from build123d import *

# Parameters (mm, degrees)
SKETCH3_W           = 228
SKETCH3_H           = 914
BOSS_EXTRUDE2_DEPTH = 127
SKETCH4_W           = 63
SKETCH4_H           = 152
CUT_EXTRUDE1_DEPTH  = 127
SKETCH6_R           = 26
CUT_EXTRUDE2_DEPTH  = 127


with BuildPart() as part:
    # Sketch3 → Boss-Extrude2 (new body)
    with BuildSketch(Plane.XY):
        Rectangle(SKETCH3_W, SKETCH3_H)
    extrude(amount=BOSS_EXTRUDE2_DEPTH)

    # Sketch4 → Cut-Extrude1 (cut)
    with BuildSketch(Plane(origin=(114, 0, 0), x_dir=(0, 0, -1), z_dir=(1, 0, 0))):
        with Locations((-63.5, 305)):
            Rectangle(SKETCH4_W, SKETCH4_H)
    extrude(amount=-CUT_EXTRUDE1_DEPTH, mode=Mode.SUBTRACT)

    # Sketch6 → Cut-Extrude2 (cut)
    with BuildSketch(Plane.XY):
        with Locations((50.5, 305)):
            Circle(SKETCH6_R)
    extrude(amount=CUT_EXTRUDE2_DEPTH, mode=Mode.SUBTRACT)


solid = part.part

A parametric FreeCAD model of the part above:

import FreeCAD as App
import Part
import Sketcher
from FreeCAD import Vector

doc = App.newDocument("Part")
params = doc.addObject("Spreadsheet::Sheet", "Params")
for row, (alias, value) in enumerate([
    ("sketch1_width", "228 mm"),
    ("sketch1_height", "914 mm"),
    ("pad1_length", "127 mm"),
    ("sketch2_width", "152 mm"),
    ("sketch2_height", "63 mm"),
    ("pocket1_length", "127 mm"),
    ("sketch3_diameter", "52 mm"),
    ("pocket2_length", "127 mm"),
], start=1):
    params.set(f"A{row}", alias)
    params.set(f"B{row}", "=" + value)
    params.setAlias(f"B{row}", alias)

body = doc.addObject("PartDesign::Body", "Body")

# Sketch on XY plane
sketch1 = body.newObject("Sketcher::SketchObject", "Sketch")
sketch1.AttachmentSupport = (doc.getObject("XY_Plane"), [""])
sketch1.MapMode = "FlatFace"
sketch1.addGeometry([
    Part.LineSegment(Vector(-114, 457, 0), Vector(-114, -457, 0)),
    Part.LineSegment(Vector(-114, -457, 0), Vector(114, -457, 0)),
    Part.LineSegment(Vector(114, -457, 0), Vector(114, 457, 0)),
    Part.LineSegment(Vector(114, 457, 0), Vector(-114, 457, 0)),
], False)
sketch1.addConstraint([
    Sketcher.Constraint("Coincident", 0, 2, 1, 1),
    Sketcher.Constraint("Coincident", 1, 2, 2, 1),
    Sketcher.Constraint("Coincident", 2, 2, 3, 1),
    Sketcher.Constraint("Coincident", 3, 2, 0, 1),
    Sketcher.Constraint("Vertical", 0),
    Sketcher.Constraint("Horizontal", 1),
    Sketcher.Constraint("Vertical", 2),
    Sketcher.Constraint("Horizontal", 3),
    Sketcher.Constraint("Symmetric", 0, 2, 2, 2, -1, 1),
    Sketcher.Constraint("DistanceX", 1, 1, 1, 2, 228.0),
    Sketcher.Constraint("DistanceY", 0, 2, 0, 1, 914.0),
])
sketch1.setExpression("Constraints[9]", "Params.sketch1_width")
sketch1.setExpression("Constraints[10]", "Params.sketch1_height")
pad1 = body.newObject("PartDesign::Pad", "Pad")
pad1.Profile = sketch1
pad1.setExpression("Length", "Params.pad1_length")

# Sketch on YZ plane
sketch2 = body.newObject("Sketcher::SketchObject", "Sketch001")
sketch2.AttachmentSupport = (doc.getObject("YZ_Plane"), [""])
sketch2.MapMode = "FlatFace"
sketch2.AttachmentOffset = App.Placement(Vector(0, 0, 114), App.Rotation())
sketch2.addGeometry([
    Part.LineSegment(Vector(381, 95, 0), Vector(229, 95, 0)),
    Part.LineSegment(Vector(229, 95, 0), Vector(229, 32, 0)),
    Part.LineSegment(Vector(229, 32, 0), Vector(381, 32, 0)),
    Part.LineSegment(Vector(381, 32, 0), Vector(381, 95, 0)),
], False)
sketch2.addConstraint([
    Sketcher.Constraint("Coincident", 0, 2, 1, 1),
    Sketcher.Constraint("Coincident", 1, 2, 2, 1),
    Sketcher.Constraint("Coincident", 2, 2, 3, 1),
    Sketcher.Constraint("Coincident", 3, 2, 0, 1),
    Sketcher.Constraint("Horizontal", 0),
    Sketcher.Constraint("Vertical", 1),
    Sketcher.Constraint("Horizontal", 2),
    Sketcher.Constraint("Vertical", 3),
    Sketcher.Constraint("DistanceX", 0, 2, 0, 1, 152.0),
    Sketcher.Constraint("DistanceY", 1, 2, 1, 1, 63.0),
    Sketcher.Constraint("DistanceX", -1, 1, 0, 2, 229.0),
    Sketcher.Constraint("DistanceY", -1, 1, 0, 2, 95.0),
])
sketch2.setExpression("Constraints[8]", "Params.sketch2_width")
sketch2.setExpression("Constraints[9]", "Params.sketch2_height")
pocket1 = body.newObject("PartDesign::Pocket", "Pocket")
pocket1.Profile = sketch2
pocket1.setExpression("Length", "Params.pocket1_length")

# Sketch on XY plane
sketch3 = body.newObject("Sketcher::SketchObject", "Sketch002")
sketch3.AttachmentSupport = (doc.getObject("XY_Plane"), [""])
sketch3.MapMode = "FlatFace"
sketch3.addGeometry(Part.Circle(Vector(50.5, 305, 0), Vector(0, 0, 1), 26), False)
sketch3.addConstraint([
    Sketcher.Constraint("Diameter", 0, 52.0),
    Sketcher.Constraint("DistanceY", -1, 1, 0, 3, 305.0),
    Sketcher.Constraint("DistanceX", -1, 1, 0, 3, 50.5),
])
sketch3.setExpression("Constraints[0]", "Params.sketch3_diameter")
pocket2 = body.newObject("PartDesign::Pocket", "Pocket001")
pocket2.Profile = sketch3
pocket2.setExpression("Length", "Params.pocket2_length")
pocket2.Reversed = True

doc.recompute()
